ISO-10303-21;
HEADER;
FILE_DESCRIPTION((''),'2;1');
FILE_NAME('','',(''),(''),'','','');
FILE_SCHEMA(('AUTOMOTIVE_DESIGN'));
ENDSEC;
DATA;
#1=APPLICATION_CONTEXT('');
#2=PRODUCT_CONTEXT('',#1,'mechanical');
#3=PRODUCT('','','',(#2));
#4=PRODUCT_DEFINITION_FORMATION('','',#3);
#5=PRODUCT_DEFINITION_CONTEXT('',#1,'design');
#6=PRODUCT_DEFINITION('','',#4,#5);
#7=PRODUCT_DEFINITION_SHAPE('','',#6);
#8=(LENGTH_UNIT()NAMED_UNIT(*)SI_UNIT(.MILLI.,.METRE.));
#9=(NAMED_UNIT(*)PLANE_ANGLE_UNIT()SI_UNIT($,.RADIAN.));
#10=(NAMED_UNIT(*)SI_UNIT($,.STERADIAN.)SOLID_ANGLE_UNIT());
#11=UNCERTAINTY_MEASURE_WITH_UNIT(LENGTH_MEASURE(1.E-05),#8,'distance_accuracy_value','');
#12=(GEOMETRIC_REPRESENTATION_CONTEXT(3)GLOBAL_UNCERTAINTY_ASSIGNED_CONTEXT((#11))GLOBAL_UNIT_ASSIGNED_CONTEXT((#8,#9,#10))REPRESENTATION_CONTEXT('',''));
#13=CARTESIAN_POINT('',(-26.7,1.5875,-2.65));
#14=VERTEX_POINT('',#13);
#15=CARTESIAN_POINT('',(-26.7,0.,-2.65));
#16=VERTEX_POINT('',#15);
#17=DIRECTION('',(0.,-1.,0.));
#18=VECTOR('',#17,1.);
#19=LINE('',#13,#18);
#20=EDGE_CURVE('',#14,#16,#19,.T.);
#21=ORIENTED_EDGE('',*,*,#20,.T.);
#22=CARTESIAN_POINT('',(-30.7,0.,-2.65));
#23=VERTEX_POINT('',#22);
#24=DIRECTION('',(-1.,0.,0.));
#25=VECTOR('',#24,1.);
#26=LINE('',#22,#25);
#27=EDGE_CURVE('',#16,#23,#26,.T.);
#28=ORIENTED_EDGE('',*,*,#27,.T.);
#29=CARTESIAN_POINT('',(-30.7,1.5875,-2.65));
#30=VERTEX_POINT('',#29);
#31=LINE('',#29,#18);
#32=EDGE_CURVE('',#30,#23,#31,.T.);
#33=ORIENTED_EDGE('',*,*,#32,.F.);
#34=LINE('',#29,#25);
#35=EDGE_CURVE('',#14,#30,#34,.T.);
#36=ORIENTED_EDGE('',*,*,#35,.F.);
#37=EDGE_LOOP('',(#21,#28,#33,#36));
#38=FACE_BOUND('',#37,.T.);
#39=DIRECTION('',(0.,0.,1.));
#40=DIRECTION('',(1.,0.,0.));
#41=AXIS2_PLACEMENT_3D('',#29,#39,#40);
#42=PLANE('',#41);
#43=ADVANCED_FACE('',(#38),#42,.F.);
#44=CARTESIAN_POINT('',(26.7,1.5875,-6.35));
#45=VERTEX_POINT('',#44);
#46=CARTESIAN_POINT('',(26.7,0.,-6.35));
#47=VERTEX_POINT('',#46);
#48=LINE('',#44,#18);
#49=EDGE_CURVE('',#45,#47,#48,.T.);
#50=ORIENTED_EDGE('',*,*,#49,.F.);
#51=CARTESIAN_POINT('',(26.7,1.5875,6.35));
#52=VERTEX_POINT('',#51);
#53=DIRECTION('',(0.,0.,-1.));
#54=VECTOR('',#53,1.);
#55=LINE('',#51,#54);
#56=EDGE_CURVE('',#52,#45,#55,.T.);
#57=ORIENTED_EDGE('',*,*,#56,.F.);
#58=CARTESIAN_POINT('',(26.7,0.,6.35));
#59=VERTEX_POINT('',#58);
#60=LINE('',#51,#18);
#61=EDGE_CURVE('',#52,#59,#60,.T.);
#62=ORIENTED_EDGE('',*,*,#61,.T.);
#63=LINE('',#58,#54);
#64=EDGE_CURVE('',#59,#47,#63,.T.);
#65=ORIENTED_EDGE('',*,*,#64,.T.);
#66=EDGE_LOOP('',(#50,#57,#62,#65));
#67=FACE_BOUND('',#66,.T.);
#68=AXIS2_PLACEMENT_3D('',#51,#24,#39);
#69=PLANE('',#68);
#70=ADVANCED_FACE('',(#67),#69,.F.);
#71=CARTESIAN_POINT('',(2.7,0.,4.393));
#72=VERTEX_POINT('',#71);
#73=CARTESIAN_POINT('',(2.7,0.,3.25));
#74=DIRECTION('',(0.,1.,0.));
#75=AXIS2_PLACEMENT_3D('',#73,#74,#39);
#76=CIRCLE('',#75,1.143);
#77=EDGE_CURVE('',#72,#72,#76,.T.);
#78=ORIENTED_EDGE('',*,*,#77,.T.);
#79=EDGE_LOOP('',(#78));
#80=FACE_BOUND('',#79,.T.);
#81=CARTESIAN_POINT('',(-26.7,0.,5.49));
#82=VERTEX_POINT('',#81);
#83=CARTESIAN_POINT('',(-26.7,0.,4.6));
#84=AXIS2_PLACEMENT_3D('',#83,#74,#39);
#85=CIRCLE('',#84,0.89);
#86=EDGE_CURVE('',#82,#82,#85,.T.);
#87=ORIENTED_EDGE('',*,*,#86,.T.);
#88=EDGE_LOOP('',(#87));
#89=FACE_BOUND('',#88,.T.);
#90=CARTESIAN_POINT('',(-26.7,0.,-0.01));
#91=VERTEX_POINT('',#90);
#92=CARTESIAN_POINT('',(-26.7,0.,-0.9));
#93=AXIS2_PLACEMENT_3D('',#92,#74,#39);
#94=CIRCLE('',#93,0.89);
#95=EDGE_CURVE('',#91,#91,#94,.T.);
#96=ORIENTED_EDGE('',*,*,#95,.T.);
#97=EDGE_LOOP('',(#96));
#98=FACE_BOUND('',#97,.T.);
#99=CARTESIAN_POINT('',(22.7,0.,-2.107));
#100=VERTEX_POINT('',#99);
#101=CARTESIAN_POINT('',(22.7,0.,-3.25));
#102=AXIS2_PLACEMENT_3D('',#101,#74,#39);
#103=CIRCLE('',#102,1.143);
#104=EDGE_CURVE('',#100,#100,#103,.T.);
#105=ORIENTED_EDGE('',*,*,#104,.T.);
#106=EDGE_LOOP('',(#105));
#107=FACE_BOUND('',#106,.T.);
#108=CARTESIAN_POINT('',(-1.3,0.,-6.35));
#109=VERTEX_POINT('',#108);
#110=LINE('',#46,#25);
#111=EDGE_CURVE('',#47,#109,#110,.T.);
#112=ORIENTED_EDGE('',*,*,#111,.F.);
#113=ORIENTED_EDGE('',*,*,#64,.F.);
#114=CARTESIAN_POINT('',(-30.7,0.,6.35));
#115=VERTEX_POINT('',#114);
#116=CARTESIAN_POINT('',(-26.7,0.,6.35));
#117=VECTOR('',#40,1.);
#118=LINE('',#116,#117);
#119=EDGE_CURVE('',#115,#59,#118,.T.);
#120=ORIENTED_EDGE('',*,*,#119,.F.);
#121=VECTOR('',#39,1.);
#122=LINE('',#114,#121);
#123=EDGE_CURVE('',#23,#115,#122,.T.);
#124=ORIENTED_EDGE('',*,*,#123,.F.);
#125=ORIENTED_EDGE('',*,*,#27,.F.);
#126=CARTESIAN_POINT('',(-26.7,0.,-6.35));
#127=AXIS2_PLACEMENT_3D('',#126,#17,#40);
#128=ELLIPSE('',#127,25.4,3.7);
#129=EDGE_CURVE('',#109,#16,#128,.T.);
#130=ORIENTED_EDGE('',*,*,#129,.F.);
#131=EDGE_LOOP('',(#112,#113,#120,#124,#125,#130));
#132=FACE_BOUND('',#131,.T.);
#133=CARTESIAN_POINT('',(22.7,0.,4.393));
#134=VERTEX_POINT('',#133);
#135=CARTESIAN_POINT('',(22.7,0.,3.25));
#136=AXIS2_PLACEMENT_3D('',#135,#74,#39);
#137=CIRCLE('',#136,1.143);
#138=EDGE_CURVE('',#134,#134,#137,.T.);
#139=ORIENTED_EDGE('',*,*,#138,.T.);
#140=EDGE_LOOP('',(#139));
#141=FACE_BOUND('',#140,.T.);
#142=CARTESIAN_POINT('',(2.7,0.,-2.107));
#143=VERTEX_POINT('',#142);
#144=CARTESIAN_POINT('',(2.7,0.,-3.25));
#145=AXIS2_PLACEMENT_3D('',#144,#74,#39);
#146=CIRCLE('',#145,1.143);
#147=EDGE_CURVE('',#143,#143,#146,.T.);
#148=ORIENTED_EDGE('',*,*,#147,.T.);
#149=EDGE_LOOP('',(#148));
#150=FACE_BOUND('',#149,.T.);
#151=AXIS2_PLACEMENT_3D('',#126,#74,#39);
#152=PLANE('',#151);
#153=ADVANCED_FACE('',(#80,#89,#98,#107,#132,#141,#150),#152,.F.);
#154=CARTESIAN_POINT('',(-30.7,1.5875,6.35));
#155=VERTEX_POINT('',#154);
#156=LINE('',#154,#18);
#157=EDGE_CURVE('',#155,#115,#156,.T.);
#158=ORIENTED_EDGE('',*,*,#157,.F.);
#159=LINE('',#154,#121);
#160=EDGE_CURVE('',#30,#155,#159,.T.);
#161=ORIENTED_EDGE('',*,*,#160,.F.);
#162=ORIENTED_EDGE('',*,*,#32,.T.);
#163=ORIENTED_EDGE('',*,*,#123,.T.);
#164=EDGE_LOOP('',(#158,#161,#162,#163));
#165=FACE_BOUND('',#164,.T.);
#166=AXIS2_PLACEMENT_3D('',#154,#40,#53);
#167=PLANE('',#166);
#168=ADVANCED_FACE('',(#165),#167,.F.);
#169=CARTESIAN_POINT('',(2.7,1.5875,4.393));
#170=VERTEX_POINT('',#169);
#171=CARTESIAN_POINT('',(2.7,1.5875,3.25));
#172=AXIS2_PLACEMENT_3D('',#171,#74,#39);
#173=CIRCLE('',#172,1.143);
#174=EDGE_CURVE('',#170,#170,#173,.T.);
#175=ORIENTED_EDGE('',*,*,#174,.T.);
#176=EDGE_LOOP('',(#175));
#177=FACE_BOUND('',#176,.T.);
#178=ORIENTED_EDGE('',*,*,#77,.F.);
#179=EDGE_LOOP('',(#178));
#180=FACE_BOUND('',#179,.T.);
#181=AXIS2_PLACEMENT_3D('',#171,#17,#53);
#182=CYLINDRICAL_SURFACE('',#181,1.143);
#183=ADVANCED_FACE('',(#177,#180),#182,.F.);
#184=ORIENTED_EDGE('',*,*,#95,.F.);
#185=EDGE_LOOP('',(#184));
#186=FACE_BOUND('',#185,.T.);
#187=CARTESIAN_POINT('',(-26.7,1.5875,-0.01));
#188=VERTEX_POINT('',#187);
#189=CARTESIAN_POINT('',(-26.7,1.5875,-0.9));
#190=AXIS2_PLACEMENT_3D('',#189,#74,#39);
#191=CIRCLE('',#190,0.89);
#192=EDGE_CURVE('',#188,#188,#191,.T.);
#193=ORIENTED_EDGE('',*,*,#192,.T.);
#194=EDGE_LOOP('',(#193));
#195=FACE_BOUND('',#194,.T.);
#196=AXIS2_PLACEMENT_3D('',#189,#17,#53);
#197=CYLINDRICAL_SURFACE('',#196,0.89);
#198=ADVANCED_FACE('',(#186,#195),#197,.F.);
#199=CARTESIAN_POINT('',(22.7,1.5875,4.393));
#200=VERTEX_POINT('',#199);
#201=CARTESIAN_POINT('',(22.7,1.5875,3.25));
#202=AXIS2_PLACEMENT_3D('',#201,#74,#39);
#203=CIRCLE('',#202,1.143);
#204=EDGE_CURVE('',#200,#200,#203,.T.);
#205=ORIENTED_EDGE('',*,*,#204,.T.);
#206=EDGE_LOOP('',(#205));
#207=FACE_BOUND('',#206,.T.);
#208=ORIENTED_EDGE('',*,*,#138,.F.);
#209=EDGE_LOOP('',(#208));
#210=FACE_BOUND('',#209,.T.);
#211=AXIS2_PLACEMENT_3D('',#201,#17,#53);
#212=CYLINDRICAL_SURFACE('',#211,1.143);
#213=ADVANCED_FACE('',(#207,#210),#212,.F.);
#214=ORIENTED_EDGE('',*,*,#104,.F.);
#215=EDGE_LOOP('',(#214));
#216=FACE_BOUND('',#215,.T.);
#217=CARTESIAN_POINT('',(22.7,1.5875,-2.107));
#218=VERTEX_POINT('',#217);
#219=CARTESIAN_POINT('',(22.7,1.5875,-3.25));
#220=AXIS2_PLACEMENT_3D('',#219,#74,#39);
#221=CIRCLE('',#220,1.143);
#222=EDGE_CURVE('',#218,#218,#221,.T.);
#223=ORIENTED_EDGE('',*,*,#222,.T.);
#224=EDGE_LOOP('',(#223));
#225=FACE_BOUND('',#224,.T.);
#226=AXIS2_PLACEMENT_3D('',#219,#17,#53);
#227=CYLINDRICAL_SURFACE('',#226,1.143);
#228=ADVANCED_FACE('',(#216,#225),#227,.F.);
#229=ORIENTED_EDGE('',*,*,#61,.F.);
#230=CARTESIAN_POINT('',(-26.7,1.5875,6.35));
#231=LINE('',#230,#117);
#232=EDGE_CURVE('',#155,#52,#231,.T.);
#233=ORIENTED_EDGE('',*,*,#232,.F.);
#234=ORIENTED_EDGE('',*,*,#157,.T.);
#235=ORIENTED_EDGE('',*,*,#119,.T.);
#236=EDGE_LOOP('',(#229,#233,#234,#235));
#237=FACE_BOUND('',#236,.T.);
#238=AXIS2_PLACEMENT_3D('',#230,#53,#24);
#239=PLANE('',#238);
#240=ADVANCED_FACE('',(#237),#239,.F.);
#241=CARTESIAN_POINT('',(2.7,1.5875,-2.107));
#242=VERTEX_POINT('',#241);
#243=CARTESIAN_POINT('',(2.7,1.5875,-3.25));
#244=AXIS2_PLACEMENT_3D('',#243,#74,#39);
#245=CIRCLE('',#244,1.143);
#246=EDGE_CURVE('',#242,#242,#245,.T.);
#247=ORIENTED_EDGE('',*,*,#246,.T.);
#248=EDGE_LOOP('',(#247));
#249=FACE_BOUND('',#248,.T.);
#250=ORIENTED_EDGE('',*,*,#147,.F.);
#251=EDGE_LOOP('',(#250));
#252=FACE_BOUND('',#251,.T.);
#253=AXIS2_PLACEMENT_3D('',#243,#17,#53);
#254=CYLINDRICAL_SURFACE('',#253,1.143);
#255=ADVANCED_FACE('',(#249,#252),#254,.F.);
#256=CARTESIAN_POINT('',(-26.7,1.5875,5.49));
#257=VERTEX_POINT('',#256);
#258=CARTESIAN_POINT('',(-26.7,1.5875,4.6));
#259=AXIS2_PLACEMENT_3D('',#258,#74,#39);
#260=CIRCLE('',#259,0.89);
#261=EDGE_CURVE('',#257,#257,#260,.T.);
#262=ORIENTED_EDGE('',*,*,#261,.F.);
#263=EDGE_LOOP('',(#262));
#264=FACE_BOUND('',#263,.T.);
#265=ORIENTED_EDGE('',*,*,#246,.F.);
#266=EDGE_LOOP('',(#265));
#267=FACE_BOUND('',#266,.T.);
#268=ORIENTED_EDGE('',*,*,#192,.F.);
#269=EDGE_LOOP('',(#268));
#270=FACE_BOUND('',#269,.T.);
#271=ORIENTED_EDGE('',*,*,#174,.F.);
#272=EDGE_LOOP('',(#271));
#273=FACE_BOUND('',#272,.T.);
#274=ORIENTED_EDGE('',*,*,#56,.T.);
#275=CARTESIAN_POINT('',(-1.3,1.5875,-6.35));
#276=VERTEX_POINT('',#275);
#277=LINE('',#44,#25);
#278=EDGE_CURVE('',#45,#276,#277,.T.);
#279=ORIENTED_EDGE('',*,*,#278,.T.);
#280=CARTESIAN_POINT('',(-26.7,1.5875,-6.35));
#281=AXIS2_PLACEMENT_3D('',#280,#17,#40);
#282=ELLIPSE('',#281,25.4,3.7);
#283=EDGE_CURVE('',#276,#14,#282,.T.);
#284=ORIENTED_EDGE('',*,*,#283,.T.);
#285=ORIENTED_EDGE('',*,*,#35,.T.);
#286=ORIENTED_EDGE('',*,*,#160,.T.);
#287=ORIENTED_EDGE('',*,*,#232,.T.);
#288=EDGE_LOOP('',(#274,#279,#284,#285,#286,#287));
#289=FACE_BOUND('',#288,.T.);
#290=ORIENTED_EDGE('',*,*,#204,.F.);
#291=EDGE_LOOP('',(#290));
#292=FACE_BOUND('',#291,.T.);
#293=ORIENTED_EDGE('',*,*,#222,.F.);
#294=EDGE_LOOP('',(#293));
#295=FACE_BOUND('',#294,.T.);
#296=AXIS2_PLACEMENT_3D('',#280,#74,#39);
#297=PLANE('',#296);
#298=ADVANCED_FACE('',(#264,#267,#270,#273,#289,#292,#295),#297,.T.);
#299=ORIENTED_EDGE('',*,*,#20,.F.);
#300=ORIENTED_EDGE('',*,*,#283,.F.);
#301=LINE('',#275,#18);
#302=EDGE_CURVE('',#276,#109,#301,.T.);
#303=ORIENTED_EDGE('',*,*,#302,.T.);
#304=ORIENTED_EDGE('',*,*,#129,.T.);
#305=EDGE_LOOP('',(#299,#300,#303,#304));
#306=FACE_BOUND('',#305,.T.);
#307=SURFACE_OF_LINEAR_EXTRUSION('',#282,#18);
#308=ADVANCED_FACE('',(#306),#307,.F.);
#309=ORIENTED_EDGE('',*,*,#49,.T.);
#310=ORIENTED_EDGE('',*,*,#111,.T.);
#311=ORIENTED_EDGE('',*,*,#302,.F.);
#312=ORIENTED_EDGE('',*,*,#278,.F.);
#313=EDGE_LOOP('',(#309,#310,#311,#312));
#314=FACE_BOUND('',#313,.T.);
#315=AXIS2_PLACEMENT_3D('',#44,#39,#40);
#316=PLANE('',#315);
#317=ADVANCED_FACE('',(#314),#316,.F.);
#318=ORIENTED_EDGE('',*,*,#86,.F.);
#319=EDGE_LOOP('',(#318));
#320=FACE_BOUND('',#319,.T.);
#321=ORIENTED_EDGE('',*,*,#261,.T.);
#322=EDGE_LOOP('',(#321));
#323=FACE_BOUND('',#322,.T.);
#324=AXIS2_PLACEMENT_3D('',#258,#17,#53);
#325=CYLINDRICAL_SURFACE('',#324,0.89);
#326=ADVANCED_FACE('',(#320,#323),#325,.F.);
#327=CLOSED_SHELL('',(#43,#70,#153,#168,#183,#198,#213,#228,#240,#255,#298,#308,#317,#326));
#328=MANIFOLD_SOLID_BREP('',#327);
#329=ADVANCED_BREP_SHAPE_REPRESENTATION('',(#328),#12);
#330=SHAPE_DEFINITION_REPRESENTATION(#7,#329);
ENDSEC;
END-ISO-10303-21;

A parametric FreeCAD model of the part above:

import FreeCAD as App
import Part
import Sketcher
from FreeCAD import Vector

doc = App.newDocument("Part")
body = doc.addObject("PartDesign::Body", "Body")

# Sketch on XZ plane
sketch1 = body.newObject("Sketcher::SketchObject", "Sketch")
sketch1.AttachmentSupport = (doc.getObject("XZ_Plane"), [""])
sketch1.MapMode = "FlatFace"
sketch1.addGeometry([
    Part.LineSegment(Vector(26.7, 6.35, 0), Vector(26.7, -6.35, 0)),  # 0
    Part.LineSegment(Vector(26.7, -6.35, 0), Vector(-1.3, -6.35, 0)),  # 1
    Part.BSplineCurve([Vector(-26.7, -2.65, 0), Vector(-1.3, -2.65, 0), Vector(-1.3, -6.35, 0)], [3, 3], [4.71238898, 6.283185307], False, 2, [1, 0.707106781, 1], False),  # 2
    Part.LineSegment(Vector(-26.7, -2.65, 0), Vector(-30.7, -2.65, 0)),  # 3
    Part.LineSegment(Vector(-30.7, -2.65, 0), Vector(-30.7, 6.35, 0)),  # 4
    Part.LineSegment(Vector(-30.7, 6.35, 0), Vector(26.7, 6.35, 0)),  # 5
    Part.Circle(Vector(-26.7, 4.6, 0), Vector(0, 0, 1), 0.89),  # 6
    Part.Circle(Vector(2.7, 3.25, 0), Vector(0, 0, 1), 1.143),  # 7
    Part.Circle(Vector(22.7, 3.25, 0), Vector(0, 0, 1), 1.143),  # 8
    Part.Circle(Vector(-26.7, -0.9, 0), Vector(0, 0, 1), 0.89),  # 9
    Part.Circle(Vector(2.7, -3.25, 0), Vector(0, 0, 1), 1.143),  # 10
    Part.Circle(Vector(22.7, -3.25, 0), Vector(0, 0, 1), 1.143),  # 11
], False)
sketch1.addConstraint([
    Sketcher.Constraint("Block", 2),
    Sketcher.Constraint("Coincident", 0, 2, 1, 1),
    Sketcher.Constraint("Coincident", 1, 2, 2, 2),
    Sketcher.Constraint("Coincident", 2, 1, 3, 1),
    Sketcher.Constraint("Coincident", 3, 2, 4, 1),
    Sketcher.Constraint("Coincident", 4, 2, 5, 1),
    Sketcher.Constraint("Coincident", 5, 2, 0, 1),
    Sketcher.Constraint("Vertical", 0),
    Sketcher.Constraint("Horizontal", 1),
    Sketcher.Constraint("Horizontal", 3),
    Sketcher.Constraint("Vertical", 4),
    Sketcher.Constraint("Horizontal", 5),
    Sketcher.Constraint("Equal", 7, 8),
    Sketcher.Constraint("Equal", 6, 9),
    Sketcher.Constraint("Equal", 8, 10),
    Sketcher.Constraint("Equal", 10, 11),
    Sketcher.Constraint("Symmetric", 7, 3, 10, 3, -1),
    Sketcher.Constraint("Symmetric", 8, 3, 11, 3, -1),
    Sketcher.Constraint("Horizontal", 7, 3, 8, 3),
    Sketcher.Constraint("Vertical", 6, 3, 9, 3),
    Sketcher.Constraint("Diameter", 6, 1.78),
    Sketcher.Constraint("DistanceX", 1, 2, 1, 1, 28.0),
    Sketcher.Constraint("DistanceX", 3, 2, 3, 1, 4.0),
    Sketcher.Constraint("DistanceY", 4, 1, 4, 2, 9.0),
    Sketcher.Constraint("Diameter", 7, 2.286),
    Sketcher.Constraint("DistanceX", 7, 3, 8, 3, 20.0),
    Sketcher.Constraint("DistanceX", 11, 3, 0, 2, 4.0),
    Sketcher.Constraint("DistanceX", 3, 2, 9, 3, 4.0),
    Sketcher.Constraint("DistanceY", -1, 1, 6, 3, 4.6),
    Sketcher.Constraint("DistanceY", 9, 3, -1, 1, 0.9),
    Sketcher.Constraint("DistanceY", 10, 3, 7, 3, 6.5),
])
pad1 = body.newObject("PartDesign::Pad", "Pad")
pad1.Profile = sketch1
pad1.Length = 1.5875
pad1.Reversed = True

doc.recompute()
